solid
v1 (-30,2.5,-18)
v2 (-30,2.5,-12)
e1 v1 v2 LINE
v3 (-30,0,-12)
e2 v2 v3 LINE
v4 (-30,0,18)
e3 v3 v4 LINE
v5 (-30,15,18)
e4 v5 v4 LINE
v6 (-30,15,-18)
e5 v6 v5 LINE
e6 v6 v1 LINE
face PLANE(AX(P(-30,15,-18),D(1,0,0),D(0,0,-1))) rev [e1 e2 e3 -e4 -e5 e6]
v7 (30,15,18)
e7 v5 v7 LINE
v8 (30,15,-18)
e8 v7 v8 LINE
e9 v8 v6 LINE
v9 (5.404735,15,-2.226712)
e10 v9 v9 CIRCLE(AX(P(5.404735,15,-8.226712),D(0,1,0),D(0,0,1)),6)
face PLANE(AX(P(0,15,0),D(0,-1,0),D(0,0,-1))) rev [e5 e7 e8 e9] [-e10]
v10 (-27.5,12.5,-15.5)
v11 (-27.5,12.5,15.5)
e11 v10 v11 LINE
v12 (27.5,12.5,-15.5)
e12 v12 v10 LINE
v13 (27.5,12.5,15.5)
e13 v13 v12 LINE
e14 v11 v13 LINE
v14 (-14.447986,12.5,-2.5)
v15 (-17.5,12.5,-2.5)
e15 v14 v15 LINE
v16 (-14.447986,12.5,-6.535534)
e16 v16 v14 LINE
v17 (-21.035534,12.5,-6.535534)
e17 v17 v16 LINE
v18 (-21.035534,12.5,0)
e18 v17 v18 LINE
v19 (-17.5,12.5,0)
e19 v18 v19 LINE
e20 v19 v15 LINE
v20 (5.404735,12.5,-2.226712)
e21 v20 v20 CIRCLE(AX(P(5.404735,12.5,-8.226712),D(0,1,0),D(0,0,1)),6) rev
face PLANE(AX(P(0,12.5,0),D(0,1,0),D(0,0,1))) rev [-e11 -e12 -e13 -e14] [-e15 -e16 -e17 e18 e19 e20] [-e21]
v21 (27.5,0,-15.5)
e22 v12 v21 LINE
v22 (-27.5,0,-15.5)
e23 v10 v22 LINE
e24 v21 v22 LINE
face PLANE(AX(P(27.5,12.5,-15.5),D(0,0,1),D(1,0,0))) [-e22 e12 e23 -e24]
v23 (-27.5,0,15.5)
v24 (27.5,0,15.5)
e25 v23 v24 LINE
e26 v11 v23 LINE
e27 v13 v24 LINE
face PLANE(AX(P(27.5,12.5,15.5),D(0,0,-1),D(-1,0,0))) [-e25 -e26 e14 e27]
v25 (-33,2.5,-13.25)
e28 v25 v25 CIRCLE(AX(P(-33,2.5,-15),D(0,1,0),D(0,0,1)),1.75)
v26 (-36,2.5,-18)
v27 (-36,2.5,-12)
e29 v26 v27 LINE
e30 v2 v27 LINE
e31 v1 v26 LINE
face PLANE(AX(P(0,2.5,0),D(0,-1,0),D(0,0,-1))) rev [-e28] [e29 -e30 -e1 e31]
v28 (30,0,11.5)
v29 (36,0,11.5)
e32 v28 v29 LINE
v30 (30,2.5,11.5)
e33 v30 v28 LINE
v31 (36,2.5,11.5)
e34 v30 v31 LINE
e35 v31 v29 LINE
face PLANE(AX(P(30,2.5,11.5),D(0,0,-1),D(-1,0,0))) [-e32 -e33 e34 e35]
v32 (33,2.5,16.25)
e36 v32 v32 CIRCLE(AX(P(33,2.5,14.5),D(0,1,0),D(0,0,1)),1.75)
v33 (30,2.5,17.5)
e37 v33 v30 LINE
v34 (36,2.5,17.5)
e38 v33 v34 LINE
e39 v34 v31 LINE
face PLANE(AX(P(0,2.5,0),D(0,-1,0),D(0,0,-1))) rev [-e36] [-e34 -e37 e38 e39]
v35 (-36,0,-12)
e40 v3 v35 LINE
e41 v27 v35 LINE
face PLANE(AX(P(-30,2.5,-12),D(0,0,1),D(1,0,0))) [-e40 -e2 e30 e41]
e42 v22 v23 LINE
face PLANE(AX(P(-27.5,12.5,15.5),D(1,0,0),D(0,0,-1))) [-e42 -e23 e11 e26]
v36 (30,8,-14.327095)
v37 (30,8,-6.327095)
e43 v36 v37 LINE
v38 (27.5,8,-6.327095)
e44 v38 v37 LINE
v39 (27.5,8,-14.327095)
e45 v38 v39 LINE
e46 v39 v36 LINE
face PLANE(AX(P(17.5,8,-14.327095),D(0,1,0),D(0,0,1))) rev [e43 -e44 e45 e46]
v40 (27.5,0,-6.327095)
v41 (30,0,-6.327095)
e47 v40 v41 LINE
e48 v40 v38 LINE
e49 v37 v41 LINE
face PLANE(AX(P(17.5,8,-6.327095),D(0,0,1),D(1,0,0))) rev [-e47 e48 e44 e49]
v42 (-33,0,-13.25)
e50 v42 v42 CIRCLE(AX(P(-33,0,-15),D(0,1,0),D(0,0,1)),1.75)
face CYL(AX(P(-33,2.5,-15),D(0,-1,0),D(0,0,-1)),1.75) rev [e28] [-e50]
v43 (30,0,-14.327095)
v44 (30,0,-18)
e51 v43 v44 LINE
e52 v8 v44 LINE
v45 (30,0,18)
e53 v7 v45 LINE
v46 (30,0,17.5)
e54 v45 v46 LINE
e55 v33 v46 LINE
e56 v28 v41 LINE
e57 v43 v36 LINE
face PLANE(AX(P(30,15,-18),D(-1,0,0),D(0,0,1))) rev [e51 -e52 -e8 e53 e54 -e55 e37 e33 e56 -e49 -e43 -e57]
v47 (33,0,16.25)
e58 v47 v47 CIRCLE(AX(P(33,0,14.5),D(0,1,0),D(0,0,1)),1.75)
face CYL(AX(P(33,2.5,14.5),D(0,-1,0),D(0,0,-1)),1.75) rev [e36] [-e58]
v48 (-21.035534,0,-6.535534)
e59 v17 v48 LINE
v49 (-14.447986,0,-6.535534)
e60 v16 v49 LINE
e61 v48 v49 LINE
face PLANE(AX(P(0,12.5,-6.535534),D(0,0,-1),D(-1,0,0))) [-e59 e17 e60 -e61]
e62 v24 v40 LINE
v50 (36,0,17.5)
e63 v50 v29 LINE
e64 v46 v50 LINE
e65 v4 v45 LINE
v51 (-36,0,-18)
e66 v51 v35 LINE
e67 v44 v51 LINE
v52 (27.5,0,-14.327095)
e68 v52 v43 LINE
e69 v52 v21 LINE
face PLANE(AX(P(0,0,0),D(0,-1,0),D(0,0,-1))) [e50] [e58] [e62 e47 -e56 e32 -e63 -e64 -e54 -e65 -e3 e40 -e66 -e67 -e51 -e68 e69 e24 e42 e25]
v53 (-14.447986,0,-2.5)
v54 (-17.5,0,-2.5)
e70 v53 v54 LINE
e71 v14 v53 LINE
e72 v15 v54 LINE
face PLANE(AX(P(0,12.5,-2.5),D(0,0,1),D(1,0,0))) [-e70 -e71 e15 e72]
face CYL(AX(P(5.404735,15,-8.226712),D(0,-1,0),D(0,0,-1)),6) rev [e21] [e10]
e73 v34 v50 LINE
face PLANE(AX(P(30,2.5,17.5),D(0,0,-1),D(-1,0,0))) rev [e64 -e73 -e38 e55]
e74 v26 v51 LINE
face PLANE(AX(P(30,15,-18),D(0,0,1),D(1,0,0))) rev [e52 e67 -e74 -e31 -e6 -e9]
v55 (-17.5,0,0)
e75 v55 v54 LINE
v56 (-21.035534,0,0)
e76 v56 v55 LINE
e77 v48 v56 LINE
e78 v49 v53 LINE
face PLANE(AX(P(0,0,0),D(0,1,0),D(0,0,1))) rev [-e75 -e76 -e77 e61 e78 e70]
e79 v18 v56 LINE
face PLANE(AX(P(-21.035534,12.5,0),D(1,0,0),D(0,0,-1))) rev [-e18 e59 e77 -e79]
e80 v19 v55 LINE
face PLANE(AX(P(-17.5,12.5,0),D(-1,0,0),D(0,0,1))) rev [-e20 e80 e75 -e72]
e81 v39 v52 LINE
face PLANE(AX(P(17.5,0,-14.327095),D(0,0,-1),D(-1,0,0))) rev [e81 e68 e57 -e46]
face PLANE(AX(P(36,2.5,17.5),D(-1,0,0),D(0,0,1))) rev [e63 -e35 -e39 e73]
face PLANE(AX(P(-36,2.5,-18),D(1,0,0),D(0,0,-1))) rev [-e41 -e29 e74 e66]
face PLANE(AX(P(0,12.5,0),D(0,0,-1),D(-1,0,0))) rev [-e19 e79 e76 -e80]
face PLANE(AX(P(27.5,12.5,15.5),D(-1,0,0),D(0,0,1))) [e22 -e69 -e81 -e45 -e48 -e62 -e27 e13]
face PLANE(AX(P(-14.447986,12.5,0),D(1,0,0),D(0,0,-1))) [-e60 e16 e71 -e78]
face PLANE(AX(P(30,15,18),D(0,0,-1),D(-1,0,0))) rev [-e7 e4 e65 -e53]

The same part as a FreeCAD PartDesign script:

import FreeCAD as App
import Part
import Sketcher

V = App.Vector

doc = App.newDocument("Part")
body = doc.addObject("PartDesign::Body", "Body")

# Sketch on XZ plane
sketch1 = body.newObject("Sketcher::SketchObject", "Sketch")
sketch1.AttachmentSupport = (doc.getObject("XZ_Plane"), [""])
sketch1.MapMode = "FlatFace"
sketch1.addGeometry(Part.LineSegment(V(-30, -18, 0), V(-30, 18, 0)), False)
sketch1.addGeometry(Part.LineSegment(V(-30, 18, 0), V(30, 18, 0)), False)
sketch1.addGeometry(Part.LineSegment(V(30, 18, 0), V(30, -18, 0)), False)
sketch1.addGeometry(Part.LineSegment(V(30, -18, 0), V(-30, -18, 0)), False)
sketch1.addConstraint(Sketcher.Constraint("Coincident", 0, 2, 1, 1))
sketch1.addConstraint(Sketcher.Constraint("Coincident", 1, 2, 2, 1))
sketch1.addConstraint(Sketcher.Constraint("Coincident", 2, 2, 3, 1))
sketch1.addConstraint(Sketcher.Constraint("Coincident", 3, 2, 0, 1))
sketch1.addConstraint(Sketcher.Constraint("Vertical", 0))
sketch1.addConstraint(Sketcher.Constraint("Horizontal", 1))
sketch1.addConstraint(Sketcher.Constraint("Vertical", 2))
sketch1.addConstraint(Sketcher.Constraint("Horizontal", 3))
sketch1.addConstraint(Sketcher.Constraint("Symmetric", 0, 2, 2, 2, -1, 1))
sketch1.addConstraint(Sketcher.Constraint("DistanceX", 1, 1, 1, 2, 60.0))
sketch1.addConstraint(Sketcher.Constraint("DistanceY", 0, 1, 0, 2, 36.0))
pad1 = body.newObject("PartDesign::Pad", "Pad")
pad1.Profile = sketch1
pad1.Length = 15
pad1.Reversed = True

# Sketch on XZ plane
sketch2 = body.newObject("Sketcher::SketchObject", "Sketch001")
sketch2.AttachmentSupport = (doc.getObject("XZ_Plane"), [""])
sketch2.MapMode = "FlatFace"
sketch2.addGeometry(Part.LineSegment(V(-27.5, -15.5, 0), V(-27.5, 15.5, 0)), False)
sketch2.addGeometry(Part.LineSegment(V(-27.5, 15.5, 0), V(27.5, 15.5, 0)), False)
sketch2.addGeometry(Part.LineSegment(V(27.5, 15.5, 0), V(27.5, -15.5, 0)), False)
sketch2.addGeometry(Part.LineSegment(V(27.5, -15.5, 0), V(-27.5, -15.5, 0)), False)
sketch2.addConstraint(Sketcher.Constraint("Coincident", 0, 2, 1, 1))
sketch2.addConstraint(Sketcher.Constraint("Coincident", 1, 2, 2, 1))
sketch2.addConstraint(Sketcher.Constraint("Coincident", 2, 2, 3, 1))
sketch2.addConstraint(Sketcher.Constraint("Coincident", 3, 2, 0, 1))
sketch2.addConstraint(Sketcher.Constraint("Vertical", 0))
sketch2.addConstraint(Sketcher.Constraint("Horizontal", 1))
sketch2.addConstraint(Sketcher.Constraint("Vertical", 2))
sketch2.addConstraint(Sketcher.Constraint("Horizontal", 3))
sketch2.addConstraint(Sketcher.Constraint("Symmetric", 0, 2, 2, 2, -1, 1))
sketch2.addConstraint(Sketcher.Constraint("DistanceX", 1, 1, 1, 2, 55.0))
sketch2.addConstraint(Sketcher.Constraint("DistanceY", 0, 1, 0, 2, 31.0))
pocket1 = body.newObject("PartDesign::Pocket", "Pocket")
pocket1.Profile = sketch2
pocket1.Length = 12.5

# Sketch on XZ plane
sketch3 = body.newObject("Sketcher::SketchObject", "Sketch002")
sketch3.AttachmentSupport = (doc.getObject("XZ_Plane"), [""])
sketch3.MapMode = "FlatFace"
sketch3.addGeometry(Part.LineSegment(V(-36, -18, 0), V(-36, -12, 0)), False)
sketch3.addGeometry(Part.LineSegment(V(-36, -12, 0), V(-30, -12, 0)), False)
sketch3.addGeometry(Part.LineSegment(V(-30, -12, 0), V(-30, -18, 0)), False)
sketch3.addGeometry(Part.LineSegment(V(-30, -18, 0), V(-36, -18, 0)), False)
sketch3.addGeometry(Part.Circle(V(-33, -15, 0), V(0, 0, 1), 1.75), False)
sketch3.addGeometry(Part.LineSegment(V(30, 11.5, 0), V(30, 17.5, 0)), False)
sketch3.addGeometry(Part.LineSegment(V(30, 17.5, 0), V(36, 17.5, 0)), False)
sketch3.addGeometry(Part.LineSegment(V(36, 17.5, 0), V(36, 11.5, 0)), False)
sketch3.addGeometry(Part.LineSegment(V(36, 11.5, 0), V(30, 11.5, 0)), False)
sketch3.addGeometry(Part.Circle(V(33, 14.5, 0), V(0, 0, 1), 1.75), False)
sketch3.addConstraint(Sketcher.Constraint("Coincident", 0, 2, 1, 1))
sketch3.addConstraint(Sketcher.Constraint("Coincident", 1, 2, 2, 1))
sketch3.addConstraint(Sketcher.Constraint("Coincident", 2, 2, 3, 1))
sketch3.addConstraint(Sketcher.Constraint("Coincident", 3, 2, 0, 1))
sketch3.addConstraint(Sketcher.Constraint("Coincident", 5, 2, 6, 1))
sketch3.addConstraint(Sketcher.Constraint("Coincident", 6, 2, 7, 1))
sketch3.addConstraint(Sketcher.Constraint("Coincident", 7, 2, 8, 1))
sketch3.addConstraint(Sketcher.Constraint("Coincident", 8, 2, 5, 1))
sketch3.addConstraint(Sketcher.Constraint("Vertical", 0))
sketch3.addConstraint(Sketcher.Constraint("Horizontal", 1))
sketch3.addConstraint(Sketcher.Constraint("Vertical", 2))
sketch3.addConstraint(Sketcher.Constraint("Horizontal", 3))
sketch3.addConstraint(Sketcher.Constraint("Vertical", 5))
sketch3.addConstraint(Sketcher.Constraint("Horizontal", 6))
sketch3.addConstraint(Sketcher.Constraint("Vertical", 7))
sketch3.addConstraint(Sketcher.Constraint("Horizontal", 8))
sketch3.addConstraint(Sketcher.Constraint("Equal", 4, 9))
sketch3.addConstraint(Sketcher.Constraint("Equal", 3, 6))
sketch3.addConstraint(Sketcher.Constraint("Equal", 8, 0))
sketch3.addConstraint(Sketcher.Constraint("Equal", 2, 5))
sketch3.addConstraint(Sketcher.Constraint("Diameter", 4, 3.5))
sketch3.addConstraint(Sketcher.Constraint("DistanceX", 1, 1, 1, 2, 6.0))
sketch3.addConstraint(Sketcher.Constraint("DistanceX", 4, 3, -1, 1, 33.0))
sketch3.addConstraint(Sketcher.Constraint("DistanceY", 4, 3, -1, 1, 15.0))
sketch3.addConstraint(Sketcher.Constraint("DistanceX", -1, 1, 9, 3, 33.0))
sketch3.addConstraint(Sketcher.Constraint("DistanceX", 0, 2, -1, 1, 36.0))
sketch3.addConstraint(Sketcher.Constraint("DistanceY", 0, 2, -1, 1, 12.0))
sketch3.addConstraint(Sketcher.Constraint("DistanceX", -1, 1, 5, 2, 30.0))
sketch3.addConstraint(Sketcher.Constraint("DistanceY", 9, 3, 5, 2, 3.0))
sketch3.addConstraint(Sketcher.Constraint("DistanceY", -1, 1, 9, 3, 14.5))
pad2 = body.newObject("PartDesign::Pad", "Pad001")
pad2.Profile = sketch3
pad2.Length = 2.5
pad2.Reversed = True

# Sketch on XZ plane
sketch4 = body.newObject("Sketcher::SketchObject", "Sketch003")
sketch4.AttachmentSupport = (doc.getObject("XZ_Plane"), [""])
sketch4.MapMode = "FlatFace"
sketch4.addGeometry(Part.Circle(V(5.404735, -8.226712, 0), V(0, 0, 1), 6), False)
sketch4.addConstraint(Sketcher.Constraint("Diameter", 0, 12.0))
sketch4.addConstraint(Sketcher.Constraint("DistanceX", -1, 1, 0, 3, 5.404735))
sketch4.addConstraint(Sketcher.Constraint("DistanceY", 0, 3, -1, 1, 8.226712))
pocket2 = body.newObject("PartDesign::Pocket", "Pocket001")
pocket2.Profile = sketch4
pocket2.Length = 15

# Sketch on XZ plane
sketch5 = body.newObject("Sketcher::SketchObject", "Sketch004")
sketch5.AttachmentSupport = (doc.getObject("XZ_Plane"), [""])
sketch5.MapMode = "FlatFace"
sketch5.addGeometry(Part.LineSegment(V(-21.035534, 0, 0), V(-17.5, 0, 0)), False)
sketch5.addGeometry(Part.LineSegment(V(-17.5, 0, 0), V(-17.5, -2.5, 0)), False)
sketch5.addGeometry(Part.LineSegment(V(-17.5, -2.5, 0), V(-14.447986, -2.5, 0)), False)
sketch5.addGeometry(Part.LineSegment(V(-14.447986, -2.5, 0), V(-14.447986, -6.535534, 0)), False)
sketch5.addGeometry(Part.LineSegment(V(-14.447986, -6.535534, 0), V(-21.035534, -6.535534, 0)), False)
sketch5.addGeometry(Part.LineSegment(V(-21.035534, -6.535534, 0), V(-21.035534, 0, 0)), False)
sketch5.addConstraint(Sketcher.Constraint("Coincident", 0, 2, 1, 1))
sketch5.addConstraint(Sketcher.Constraint("Coincident", 1, 2, 2, 1))
sketch5.addConstraint(Sketcher.Constraint("Coincident", 2, 2, 3, 1))
sketch5.addConstraint(Sketcher.Constraint("Coincident", 3, 2, 4, 1))
sketch5.addConstraint(Sketcher.Constraint("Coincident", 4, 2, 5, 1))
sketch5.addConstraint(Sketcher.Constraint("Coincident", 5, 2, 0, 1))
sketch5.addConstraint(Sketcher.Constraint("Horizontal", 0))
sketch5.addConstraint(Sketcher.Constraint("Vertical", 1))
sketch5.addConstraint(Sketcher.Constraint("Horizontal", 2))
sketch5.addConstraint(Sketcher.Constraint("Vertical", 3))
sketch5.addConstraint(Sketcher.Constraint("Horizontal", 4))
sketch5.addConstraint(Sketcher.Constraint("Vertical", 5))
sketch5.addConstraint(Sketcher.Constraint("PointOnObject", 0, 2, -1))
sketch5.addConstraint(Sketcher.Constraint("DistanceY", 1, 2, 1, 1, 2.5))
sketch5.addConstraint(Sketcher.Constraint("DistanceX", 0, 2, -1, 1, 17.5))
sketch5.addConstraint(Sketcher.Constraint("DistanceX", 4, 2, 4, 1, 6.587548))
sketch5.addConstraint(Sketcher.Constraint("DistanceX", 0, 1, 0, 2, 3.535534))
sketch5.addConstraint(Sketcher.Constraint("DistanceY", 3, 2, 3, 1, 4.035534))
pad3 = body.newObject("PartDesign::Pad", "Pad002")
pad3.Profile = sketch5
pad3.Length = 12.5
pad3.Reversed = True

# Sketch on YZ plane
sketch6 = body.newObject("Sketcher::SketchObject", "Sketch005")
sketch6.AttachmentSupport = (doc.getObject("YZ_Plane"), [""])
sketch6.MapMode = "FlatFace"
sketch6.AttachmentOffset = App.Placement(V(0, 0, 30), App.Rotation())
sketch6.addGeometry(Part.LineSegment(V(8, -6.327095, 0), V(0, -6.327095, 0)), False)
sketch6.addGeometry(Part.LineSegment(V(0, -6.327095, 0), V(0, -14.327095, 0)), False)
sketch6.addGeometry(Part.LineSegment(V(0, -14.327095, 0), V(8, -14.327095, 0)), False)
sketch6.addGeometry(Part.LineSegment(V(8, -14.327095, 0), V(8, -6.327095, 0)), False)
sketch6.addConstraint(Sketcher.Constraint("Coincident", 0, 2, 1, 1))
sketch6.addConstraint(Sketcher.Constraint("Coincident", 1, 2, 2, 1))
sketch6.addConstraint(Sketcher.Constraint("Coincident", 2, 2, 3, 1))
sketch6.addConstraint(Sketcher.Constraint("Coincident", 3, 2, 0, 1))
sketch6.addConstraint(Sketcher.Constraint("Horizontal", 0))
sketch6.addConstraint(Sketcher.Constraint("Vertical", 1))
sketch6.addConstraint(Sketcher.Constraint("Horizontal", 2))
sketch6.addConstraint(Sketcher.Constraint("Vertical", 3))
sketch6.addConstraint(Sketcher.Constraint("PointOnObject", 0, 2, -2))
sketch6.addConstraint(Sketcher.Constraint("Equal", 2, 1))
sketch6.addConstraint(Sketcher.Constraint("DistanceX", 0, 2, 0, 1, 8.0))
sketch6.addConstraint(Sketcher.Constraint("DistanceY", 0, 2, -1, 1, 6.327095))
pocket3 = body.newObject("PartDesign::Pocket", "Pocket002")
pocket3.Profile = sketch6
pocket3.Length = 12.5

doc.recompute()
